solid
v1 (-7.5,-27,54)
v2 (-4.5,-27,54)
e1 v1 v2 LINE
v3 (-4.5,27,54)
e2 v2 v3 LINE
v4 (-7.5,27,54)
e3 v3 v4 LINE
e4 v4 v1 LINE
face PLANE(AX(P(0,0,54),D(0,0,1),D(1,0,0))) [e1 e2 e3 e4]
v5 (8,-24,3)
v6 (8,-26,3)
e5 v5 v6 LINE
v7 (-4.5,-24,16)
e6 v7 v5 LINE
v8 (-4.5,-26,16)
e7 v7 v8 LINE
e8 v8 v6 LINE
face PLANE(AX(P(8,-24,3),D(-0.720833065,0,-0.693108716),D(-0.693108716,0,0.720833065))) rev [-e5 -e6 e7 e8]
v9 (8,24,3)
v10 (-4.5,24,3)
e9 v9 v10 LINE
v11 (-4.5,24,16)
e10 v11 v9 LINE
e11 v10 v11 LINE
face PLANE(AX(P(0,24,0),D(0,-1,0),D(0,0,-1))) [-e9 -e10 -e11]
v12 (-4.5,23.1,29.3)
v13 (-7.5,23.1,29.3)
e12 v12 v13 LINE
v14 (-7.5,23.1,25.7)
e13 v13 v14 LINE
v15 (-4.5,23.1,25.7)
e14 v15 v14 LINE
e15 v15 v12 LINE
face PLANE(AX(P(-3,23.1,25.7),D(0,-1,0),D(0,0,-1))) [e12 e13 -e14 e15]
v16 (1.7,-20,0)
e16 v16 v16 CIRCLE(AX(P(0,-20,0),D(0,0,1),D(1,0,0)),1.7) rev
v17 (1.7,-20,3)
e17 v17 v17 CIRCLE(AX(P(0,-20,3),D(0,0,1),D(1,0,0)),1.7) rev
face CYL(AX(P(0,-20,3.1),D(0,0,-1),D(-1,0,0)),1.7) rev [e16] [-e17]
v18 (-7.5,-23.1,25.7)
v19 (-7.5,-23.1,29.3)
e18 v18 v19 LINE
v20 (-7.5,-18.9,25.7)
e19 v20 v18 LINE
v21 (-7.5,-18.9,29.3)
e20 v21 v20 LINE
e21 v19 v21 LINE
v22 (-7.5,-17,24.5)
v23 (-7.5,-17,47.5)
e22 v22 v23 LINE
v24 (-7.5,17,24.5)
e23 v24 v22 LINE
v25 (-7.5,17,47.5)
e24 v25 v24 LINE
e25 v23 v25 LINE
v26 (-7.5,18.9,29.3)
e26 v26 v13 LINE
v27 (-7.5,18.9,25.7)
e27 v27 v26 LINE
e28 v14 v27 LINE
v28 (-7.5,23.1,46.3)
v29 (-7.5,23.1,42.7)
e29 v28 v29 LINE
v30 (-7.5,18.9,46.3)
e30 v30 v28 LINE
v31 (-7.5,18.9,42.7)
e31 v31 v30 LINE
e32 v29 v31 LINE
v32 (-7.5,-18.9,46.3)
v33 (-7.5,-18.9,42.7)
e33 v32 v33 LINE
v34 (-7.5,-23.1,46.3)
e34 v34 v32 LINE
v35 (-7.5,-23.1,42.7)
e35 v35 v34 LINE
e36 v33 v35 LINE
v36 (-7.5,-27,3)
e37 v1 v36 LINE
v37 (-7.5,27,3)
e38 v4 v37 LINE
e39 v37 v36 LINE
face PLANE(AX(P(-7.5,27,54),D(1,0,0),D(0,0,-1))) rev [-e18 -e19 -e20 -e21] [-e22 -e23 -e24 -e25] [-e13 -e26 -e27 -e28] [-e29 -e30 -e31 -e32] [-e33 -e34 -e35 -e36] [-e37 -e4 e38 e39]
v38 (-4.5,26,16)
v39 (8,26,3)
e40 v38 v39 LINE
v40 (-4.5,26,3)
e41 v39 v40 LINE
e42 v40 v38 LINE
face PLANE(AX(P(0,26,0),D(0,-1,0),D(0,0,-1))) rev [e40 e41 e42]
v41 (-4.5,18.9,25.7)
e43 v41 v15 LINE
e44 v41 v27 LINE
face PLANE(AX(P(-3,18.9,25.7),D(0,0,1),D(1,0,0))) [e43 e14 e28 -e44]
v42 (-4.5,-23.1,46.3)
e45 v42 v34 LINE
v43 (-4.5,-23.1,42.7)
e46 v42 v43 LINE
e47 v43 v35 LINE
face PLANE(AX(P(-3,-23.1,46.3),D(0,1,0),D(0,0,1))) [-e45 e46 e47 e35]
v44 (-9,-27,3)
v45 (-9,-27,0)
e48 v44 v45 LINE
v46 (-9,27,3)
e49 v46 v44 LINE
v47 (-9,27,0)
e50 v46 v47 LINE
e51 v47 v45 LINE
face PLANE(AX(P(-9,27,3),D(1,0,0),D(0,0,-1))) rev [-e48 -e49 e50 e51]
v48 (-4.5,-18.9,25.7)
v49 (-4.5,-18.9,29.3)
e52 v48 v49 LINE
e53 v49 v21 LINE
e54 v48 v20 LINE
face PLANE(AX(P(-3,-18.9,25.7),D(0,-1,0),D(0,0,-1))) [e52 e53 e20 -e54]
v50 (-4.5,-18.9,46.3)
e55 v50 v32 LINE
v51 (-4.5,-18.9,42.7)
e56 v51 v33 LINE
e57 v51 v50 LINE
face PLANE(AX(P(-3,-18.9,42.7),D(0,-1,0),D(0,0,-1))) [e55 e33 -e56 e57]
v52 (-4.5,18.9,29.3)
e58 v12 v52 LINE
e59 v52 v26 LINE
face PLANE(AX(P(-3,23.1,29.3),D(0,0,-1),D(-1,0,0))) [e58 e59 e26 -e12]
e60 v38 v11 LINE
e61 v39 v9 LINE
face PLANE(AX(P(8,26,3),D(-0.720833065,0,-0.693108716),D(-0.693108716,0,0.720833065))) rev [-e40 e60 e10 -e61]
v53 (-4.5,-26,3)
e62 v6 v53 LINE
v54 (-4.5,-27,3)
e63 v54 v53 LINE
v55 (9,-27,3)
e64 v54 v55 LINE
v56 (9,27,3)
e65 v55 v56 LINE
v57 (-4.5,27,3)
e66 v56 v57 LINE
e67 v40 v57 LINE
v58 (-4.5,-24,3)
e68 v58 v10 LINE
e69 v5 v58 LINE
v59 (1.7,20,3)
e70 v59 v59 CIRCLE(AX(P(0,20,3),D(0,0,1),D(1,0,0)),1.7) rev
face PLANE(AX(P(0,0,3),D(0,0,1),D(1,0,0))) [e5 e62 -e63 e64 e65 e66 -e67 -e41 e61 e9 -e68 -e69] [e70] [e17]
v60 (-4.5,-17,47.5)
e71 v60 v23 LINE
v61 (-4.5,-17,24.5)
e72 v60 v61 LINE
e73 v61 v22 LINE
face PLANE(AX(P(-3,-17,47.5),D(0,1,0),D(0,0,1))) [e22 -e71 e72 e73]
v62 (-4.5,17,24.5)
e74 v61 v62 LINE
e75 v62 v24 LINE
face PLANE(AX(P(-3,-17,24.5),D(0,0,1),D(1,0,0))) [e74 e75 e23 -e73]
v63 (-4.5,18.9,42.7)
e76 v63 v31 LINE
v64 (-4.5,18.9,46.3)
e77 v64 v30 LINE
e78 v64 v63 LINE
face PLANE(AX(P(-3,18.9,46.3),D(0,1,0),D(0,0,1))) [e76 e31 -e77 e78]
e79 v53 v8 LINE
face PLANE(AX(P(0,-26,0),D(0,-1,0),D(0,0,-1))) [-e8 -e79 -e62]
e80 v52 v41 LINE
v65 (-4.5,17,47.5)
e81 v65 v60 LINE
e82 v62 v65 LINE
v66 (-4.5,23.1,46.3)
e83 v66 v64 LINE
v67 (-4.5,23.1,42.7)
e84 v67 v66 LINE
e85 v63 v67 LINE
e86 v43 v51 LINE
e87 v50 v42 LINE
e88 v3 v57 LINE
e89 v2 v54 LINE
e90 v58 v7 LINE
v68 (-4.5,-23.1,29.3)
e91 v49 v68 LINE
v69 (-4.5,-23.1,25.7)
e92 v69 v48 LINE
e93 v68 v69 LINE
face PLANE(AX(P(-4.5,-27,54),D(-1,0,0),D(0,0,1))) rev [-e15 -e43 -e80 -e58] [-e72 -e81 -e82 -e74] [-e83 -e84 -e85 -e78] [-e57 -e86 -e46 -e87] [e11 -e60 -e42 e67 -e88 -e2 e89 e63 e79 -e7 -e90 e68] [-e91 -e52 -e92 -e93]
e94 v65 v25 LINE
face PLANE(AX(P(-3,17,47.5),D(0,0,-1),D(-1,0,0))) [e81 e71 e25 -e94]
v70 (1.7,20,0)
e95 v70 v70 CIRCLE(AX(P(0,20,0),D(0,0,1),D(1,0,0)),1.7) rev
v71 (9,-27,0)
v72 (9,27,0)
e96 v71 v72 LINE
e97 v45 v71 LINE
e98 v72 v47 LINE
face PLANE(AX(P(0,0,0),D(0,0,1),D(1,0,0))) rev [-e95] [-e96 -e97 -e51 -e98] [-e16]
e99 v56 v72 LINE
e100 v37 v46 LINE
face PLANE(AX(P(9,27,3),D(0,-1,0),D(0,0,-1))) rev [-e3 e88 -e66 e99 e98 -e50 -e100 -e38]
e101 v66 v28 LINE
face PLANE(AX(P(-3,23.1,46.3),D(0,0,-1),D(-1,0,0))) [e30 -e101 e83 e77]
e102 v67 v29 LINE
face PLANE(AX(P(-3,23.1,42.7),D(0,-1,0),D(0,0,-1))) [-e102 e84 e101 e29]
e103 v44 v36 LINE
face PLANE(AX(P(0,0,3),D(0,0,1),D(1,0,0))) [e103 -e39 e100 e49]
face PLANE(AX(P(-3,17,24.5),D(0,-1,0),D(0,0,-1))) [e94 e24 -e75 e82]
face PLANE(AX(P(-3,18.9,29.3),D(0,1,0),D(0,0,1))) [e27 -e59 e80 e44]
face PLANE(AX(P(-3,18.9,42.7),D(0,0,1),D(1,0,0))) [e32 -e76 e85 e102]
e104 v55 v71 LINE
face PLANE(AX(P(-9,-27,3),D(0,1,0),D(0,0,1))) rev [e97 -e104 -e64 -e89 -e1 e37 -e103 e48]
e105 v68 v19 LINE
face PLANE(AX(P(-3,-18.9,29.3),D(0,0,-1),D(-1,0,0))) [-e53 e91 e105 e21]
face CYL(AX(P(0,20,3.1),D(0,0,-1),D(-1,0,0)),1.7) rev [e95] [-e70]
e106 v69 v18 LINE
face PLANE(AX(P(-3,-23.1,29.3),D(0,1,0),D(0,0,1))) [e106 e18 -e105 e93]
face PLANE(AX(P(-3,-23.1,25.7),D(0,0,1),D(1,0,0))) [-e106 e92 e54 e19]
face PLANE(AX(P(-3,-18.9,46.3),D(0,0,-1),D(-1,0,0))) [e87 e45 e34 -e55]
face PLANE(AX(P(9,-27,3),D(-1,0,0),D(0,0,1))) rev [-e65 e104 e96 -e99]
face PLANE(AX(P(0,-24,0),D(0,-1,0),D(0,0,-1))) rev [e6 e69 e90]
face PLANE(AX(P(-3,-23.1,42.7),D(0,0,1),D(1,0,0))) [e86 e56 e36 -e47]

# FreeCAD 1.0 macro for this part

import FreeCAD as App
import Part
import Sketcher
from FreeCAD import Vector
Q = App.Units.Quantity

doc = App.newDocument("Part")
body = doc.addObject("PartDesign::Body", "Body")

# Sketch on XY plane
sketch1 = body.newObject("Sketcher::SketchObject", "Sketch")
sketch1.AttachmentSupport = (doc.getObject("XY_Plane"), [""])
sketch1.MapMode = "FlatFace"
sketch1.addGeometry([
    Part.LineSegment(Vector(-9, 27, 0), Vector(-9, -27, 0)),
    Part.LineSegment(Vector(-9, -27, 0), Vector(9, -27, 0)),
    Part.LineSegment(Vector(9, -27, 0), Vector(9, 27, 0)),
    Part.LineSegment(Vector(9, 27, 0), Vector(-9, 27, 0)),
], False)
sketch1.addConstraint([
    Sketcher.Constraint("Coincident", 0, 2, 1, 1),
    Sketcher.Constraint("Coincident", 1, 2, 2, 1),
    Sketcher.Constraint("Coincident", 2, 2, 3, 1),
    Sketcher.Constraint("Coincident", 3, 2, 0, 1),
    Sketcher.Constraint("Vertical", 0),
    Sketcher.Constraint("Horizontal", 1),
    Sketcher.Constraint("Vertical", 2),
    Sketcher.Constraint("Horizontal", 3),
    Sketcher.Constraint("Symmetric", 0, 2, 2, 2, -1, 1),
    Sketcher.Constraint("DistanceX", 1, 1, 1, 2, Q("18 mm")),
    Sketcher.Constraint("DistanceY", 0, 2, 0, 1, Q("54 mm")),
])
pad1 = body.newObject("PartDesign::Pad", "Pad")
pad1.Profile = sketch1
pad1.Length = 3

# Sketch on XY plane
sketch2 = body.newObject("Sketcher::SketchObject", "Sketch001")
sketch2.AttachmentSupport = (doc.getObject("XY_Plane"), [""])
sketch2.MapMode = "FlatFace"
sketch2.AttachmentOffset = App.Placement(Vector(0, 0, 3), App.Rotation())
sketch2.addGeometry([
    Part.LineSegment(Vector(-7.5, 27, 0), Vector(-7.5, -27, 0)),
    Part.LineSegment(Vector(-7.5, -27, 0), Vector(-4.5, -27, 0)),
    Part.LineSegment(Vector(-4.5, -27, 0), Vector(-4.5, 27, 0)),
    Part.LineSegment(Vector(-4.5, 27, 0), Vector(-7.5, 27, 0)),
], False)
sketch2.addConstraint([
    Sketcher.Constraint("Coincident", 0, 2, 1, 1),
    Sketcher.Constraint("Coincident", 1, 2, 2, 1),
    Sketcher.Constraint("Coincident", 2, 2, 3, 1),
    Sketcher.Constraint("Coincident", 3, 2, 0, 1),
    Sketcher.Constraint("Vertical", 0),
    Sketcher.Constraint("Horizontal", 1),
    Sketcher.Constraint("Vertical", 2),
    Sketcher.Constraint("Horizontal", 3),
    Sketcher.Constraint("DistanceX", 1, 1, 1, 2, Q("3 mm")),
    Sketcher.Constraint("DistanceY", 0, 2, 0, 1, Q("54 mm")),
    Sketcher.Constraint("DistanceY", 0, 2, -1, 1, Q("27 mm")),
    Sketcher.Constraint("DistanceX", 0, 2, -1, 1, Q("7.5 mm")),
])
pad2 = body.newObject("PartDesign::Pad", "Pad001")
pad2.Profile = sketch2
pad2.Length = 51

# Sketch on YZ plane
sketch3 = body.newObject("Sketcher::SketchObject", "Sketch002")
sketch3.AttachmentSupport = (doc.getObject("YZ_Plane"), [""])
sketch3.MapMode = "FlatFace"
sketch3.AttachmentOffset = App.Placement(Vector(0, 0, -8), App.Rotation())
sketch3.addGeometry([
    Part.LineSegment(Vector(17, 48, 0), Vector(-17, 48, 0)),
    Part.LineSegment(Vector(-17, 48, 0), Vector(-17, 24, 0)),
    Part.LineSegment(Vector(-17, 24, 0), Vector(17, 24, 0)),
    Part.LineSegment(Vector(17, 24, 0), Vector(17, 48, 0)),
], False)
sketch3.addConstraint([
    Sketcher.Constraint("Coincident", 0, 2, 1, 1),
    Sketcher.Constraint("Coincident", 1, 2, 2, 1),
    Sketcher.Constraint("Coincident", 2, 2, 3, 1),
    Sketcher.Constraint("Coincident", 3, 2, 0, 1),
    Sketcher.Constraint("Horizontal", 0),
    Sketcher.Constraint("Vertical", 1),
    Sketcher.Constraint("Horizontal", 2),
    Sketcher.Constraint("Vertical", 3),
    Sketcher.Constraint("DistanceX", 0, 2, 0, 1, Q("34 mm")),
    Sketcher.Constraint("DistanceY", 1, 2, 1, 1, Q("23 mm")),
    Sketcher.Constraint("DistanceX", 0, 2, -1, 1, Q("17 mm")),
    Sketcher.Constraint("DistanceY", -1, 1, 0, 2, Q("47.5 mm")),
])
pocket1 = body.newObject("PartDesign::Pocket", "Pocket")
pocket1.Profile = sketch3
pocket1.Length = 5
pocket1.Reversed = True

# Sketch on YZ plane
sketch4 = body.newObject("Sketcher::SketchObject", "Sketch003")
sketch4.AttachmentSupport = (doc.getObject("YZ_Plane"), [""])
sketch4.MapMode = "FlatFace"
sketch4.AttachmentOffset = App.Placement(Vector(0, 0, -8), App.Rotation())
sketch4.addGeometry([
    Part.LineSegment(Vector(-18.9, 29.3, 0), Vector(-23.1, 29.3, 0)),  # 0
    Part.LineSegment(Vector(-23.1, 29.3, 0), Vector(-23.1, 25.7, 0)),  # 1
    Part.LineSegment(Vector(-23.1, 25.7, 0), Vector(-18.9, 25.7, 0)),  # 2
    Part.LineSegment(Vector(-18.9, 25.7, 0), Vector(-18.9, 29.3, 0)),  # 3
    Part.LineSegment(Vector(-18.9, 46.3, 0), Vector(-23.1, 46.3, 0)),  # 4
    Part.LineSegment(Vector(-23.1, 46.3, 0), Vector(-23.1, 42.7, 0)),  # 5
    Part.LineSegment(Vector(-23.1, 42.7, 0), Vector(-18.9, 42.7, 0)),  # 6
    Part.LineSegment(Vector(-18.9, 42.7, 0), Vector(-18.9, 46.3, 0)),  # 7
    Part.LineSegment(Vector(23.1, 29.3, 0), Vector(18.9, 29.3, 0)),  # 8
    Part.LineSegment(Vector(18.9, 29.3, 0), Vector(18.9, 25.7, 0)),  # 9
    Part.LineSegment(Vector(18.9, 25.7, 0), Vector(23.1, 25.7, 0)),  # 10
    Part.LineSegment(Vector(23.1, 25.7, 0), Vector(23.1, 29.3, 0)),  # 11
    Part.LineSegment(Vector(23.1, 46.3, 0), Vector(18.9, 46.3, 0)),  # 12
    Part.LineSegment(Vector(18.9, 46.3, 0), Vector(18.9, 42.7, 0)),  # 13
    Part.LineSegment(Vector(18.9, 42.7, 0), Vector(23.1, 42.7, 0)),  # 14
    Part.LineSegment(Vector(23.1, 42.7, 0), Vector(23.1, 46.3, 0)),  # 15
], False)
sketch4.addConstraint([
    Sketcher.Constraint("Coincident", 0, 2, 1, 1),
    Sketcher.Constraint("Coincident", 1, 2, 2, 1),
    Sketcher.Constraint("Coincident", 2, 2, 3, 1),
    Sketcher.Constraint("Coincident", 3, 2, 0, 1),
    Sketcher.Constraint("Coincident", 4, 2, 5, 1),
    Sketcher.Constraint("Coincident", 5, 2, 6, 1),
    Sketcher.Constraint("Coincident", 6, 2, 7, 1),
    Sketcher.Constraint("Coincident", 7, 2, 4, 1),
    Sketcher.Constraint("Coincident", 8, 2, 9, 1),
    Sketcher.Constraint("Coincident", 9, 2, 10, 1),
    Sketcher.Constraint("Coincident", 10, 2, 11, 1),
    Sketcher.Constraint("Coincident", 11, 2, 8, 1),
    Sketcher.Constraint("Coincident", 12, 2, 13, 1),
    Sketcher.Constraint("Coincident", 13, 2, 14, 1),
    Sketcher.Constraint("Coincident", 14, 2, 15, 1),
    Sketcher.Constraint("Coincident", 15, 2, 12, 1),
    Sketcher.Constraint("Horizontal", 0),
    Sketcher.Constraint("Vertical", 1),
    Sketcher.Constraint("Horizontal", 2),
    Sketcher.Constraint("Vertical", 3),
    Sketcher.Constraint("Horizontal", 4),
    Sketcher.Constraint("Vertical", 5),
    Sketcher.Constraint("Horizontal", 6),
    Sketcher.Constraint("Vertical", 7),
    Sketcher.Constraint("Horizontal", 8),
    Sketcher.Constraint("Vertical", 9),
    Sketcher.Constraint("Horizontal", 10),
    Sketcher.Constraint("Vertical", 11),
    Sketcher.Constraint("Horizontal", 12),
    Sketcher.Constraint("Vertical", 13),
    Sketcher.Constraint("Horizontal", 14),
    Sketcher.Constraint("Vertical", 15),
    Sketcher.Constraint("Symmetric", 3, 2, 8, 2, -2),
    Sketcher.Constraint("Symmetric", 1, 2, 10, 2, -2),
    Sketcher.Constraint("Symmetric", 7, 2, 12, 2, -2),
    Sketcher.Constraint("Symmetric", 5, 2, 14, 2, -2),
    Sketcher.Constraint("Vertical", 1, 2, 4, 2),
    Sketcher.Constraint("Vertical", 3, 2, 6, 2),
    Sketcher.Constraint("Equal", 3, 5),
    Sketcher.Constraint("DistanceX", 0, 2, 0, 1, Q("4.2 mm")),
    Sketcher.Constraint("DistanceY", 1, 2, 1, 1, Q("3.6 mm")),
    Sketcher.Constraint("DistanceY", 0, 2, 4, 2, Q("17 mm")),
    Sketcher.Constraint("DistanceX", 0, 2, 8, 2, Q("42 mm")),
    Sketcher.Constraint("DistanceY", -1, 1, 0, 2, Q("29.3 mm")),
])
pocket2 = body.newObject("PartDesign::Pocket", "Pocket001")
pocket2.Profile = sketch4
pocket2.Length = 5
pocket2.Reversed = True

# Sketch on XZ plane
sketch5 = body.newObject("Sketcher::SketchObject", "Sketch004")
sketch5.AttachmentSupport = (doc.getObject("XZ_Plane"), [""])
sketch5.MapMode = "FlatFace"
sketch5.AttachmentOffset = App.Placement(Vector(0, 0, 26), App.Rotation())
sketch5.addGeometry([
    Part.LineSegment(Vector(8, 3, 0), Vector(-4, 3, 0)),
    Part.LineSegment(Vector(-4, 3, 0), Vector(-4, 16, 0)),
    Part.LineSegment(Vector(-4, 16, 0), Vector(8, 3, 0)),
], False)
sketch5.addConstraint([
    Sketcher.Constraint("Coincident", 0, 2, 1, 1),
    Sketcher.Constraint("Coincident", 1, 2, 2, 1),
    Sketcher.Constraint("Coincident", 2, 2, 0, 1),
    Sketcher.Constraint("Horizontal", 0),
    Sketcher.Constraint("Vertical", 1),
    Sketcher.Constraint("DistanceY", 1, 1, 1, 2, Q("13 mm")),
    Sketcher.Constraint("DistanceX", 0, 2, 0, 1, Q("12.5 mm")),
    Sketcher.Constraint("DistanceY", -1, 1, 0, 2, Q("3 mm")),
    Sketcher.Constraint("DistanceX", -1, 1, 2, 2, Q("8 mm")),
])
pad3 = body.newObject("PartDesign::Pad", "Pad002")
pad3.Profile = sketch5
pad3.Length = 2
pad3.Reversed = True

# Sketch on XZ plane
sketch6 = body.newObject("Sketcher::SketchObject", "Sketch005")
sketch6.AttachmentSupport = (doc.getObject("XZ_Plane"), [""])
sketch6.MapMode = "FlatFace"
sketch6.AttachmentOffset = App.Placement(Vector(0, 0, -24), App.Rotation())
sketch6.addGeometry([
    Part.LineSegment(Vector(8, 3, 0), Vector(-4, 3, 0)),
    Part.LineSegment(Vector(-4, 3, 0), Vector(-4, 16, 0)),
    Part.LineSegment(Vector(-4, 16, 0), Vector(8, 3, 0)),
], False)
sketch6.addConstraint([
    Sketcher.Constraint("Coincident", 0, 2, 1, 1),
    Sketcher.Constraint("Coincident", 1, 2, 2, 1),
    Sketcher.Constraint("Coincident", 2, 2, 0, 1),
    Sketcher.Constraint("Horizontal", 0),
    Sketcher.Constraint("Vertical", 1),
    Sketcher.Constraint("DistanceY", 1, 1, 1, 2, Q("13 mm")),
    Sketcher.Constraint("DistanceX", 0, 2, 0, 1, Q("12.5 mm")),
    Sketcher.Constraint("DistanceY", -1, 1, 0, 2, Q("3 mm")),
    Sketcher.Constraint("DistanceX", -1, 1, 2, 2, Q("8 mm")),
])
pad4 = body.newObject("PartDesign::Pad", "Pad003")
pad4.Profile = sketch6
pad4.Length = 2
pad4.Reversed = True

# Sketch on XY plane
sketch7 = body.newObject("Sketcher::SketchObject", "Sketch006")
sketch7.AttachmentSupport = (doc.getObject("XY_Plane"), [""])
sketch7.MapMode = "FlatFace"
sketch7.AttachmentOffset = App.Placement(Vector(0, 0, -0.1), App.Rotation())
sketch7.addGeometry([
    Part.Circle(Vector(0, -20, 0), Vector(0, 0, 1), 1.7),
    Part.Circle(Vector(0, 20, 0), Vector(0, 0, 1), 1.7),
], False)
sketch7.addConstraint([
    Sketcher.Constraint("Equal", 0, 1),
    Sketcher.Constraint("Symmetric", 0, 3, 1, 3, -1, 1),
    Sketcher.Constraint("PointOnObject", 0, 3, -2),
    Sketcher.Constraint("Diameter", 0, Q("3.4 mm")),
    Sketcher.Constraint("DistanceY", 0, 3, -1, 1, Q("20 mm")),
])
pocket3 = body.newObject("PartDesign::Pocket", "Pocket002")
pocket3.Profile = sketch7
pocket3.Length = 3.2
pocket3.Reversed = True

doc.recompute()
